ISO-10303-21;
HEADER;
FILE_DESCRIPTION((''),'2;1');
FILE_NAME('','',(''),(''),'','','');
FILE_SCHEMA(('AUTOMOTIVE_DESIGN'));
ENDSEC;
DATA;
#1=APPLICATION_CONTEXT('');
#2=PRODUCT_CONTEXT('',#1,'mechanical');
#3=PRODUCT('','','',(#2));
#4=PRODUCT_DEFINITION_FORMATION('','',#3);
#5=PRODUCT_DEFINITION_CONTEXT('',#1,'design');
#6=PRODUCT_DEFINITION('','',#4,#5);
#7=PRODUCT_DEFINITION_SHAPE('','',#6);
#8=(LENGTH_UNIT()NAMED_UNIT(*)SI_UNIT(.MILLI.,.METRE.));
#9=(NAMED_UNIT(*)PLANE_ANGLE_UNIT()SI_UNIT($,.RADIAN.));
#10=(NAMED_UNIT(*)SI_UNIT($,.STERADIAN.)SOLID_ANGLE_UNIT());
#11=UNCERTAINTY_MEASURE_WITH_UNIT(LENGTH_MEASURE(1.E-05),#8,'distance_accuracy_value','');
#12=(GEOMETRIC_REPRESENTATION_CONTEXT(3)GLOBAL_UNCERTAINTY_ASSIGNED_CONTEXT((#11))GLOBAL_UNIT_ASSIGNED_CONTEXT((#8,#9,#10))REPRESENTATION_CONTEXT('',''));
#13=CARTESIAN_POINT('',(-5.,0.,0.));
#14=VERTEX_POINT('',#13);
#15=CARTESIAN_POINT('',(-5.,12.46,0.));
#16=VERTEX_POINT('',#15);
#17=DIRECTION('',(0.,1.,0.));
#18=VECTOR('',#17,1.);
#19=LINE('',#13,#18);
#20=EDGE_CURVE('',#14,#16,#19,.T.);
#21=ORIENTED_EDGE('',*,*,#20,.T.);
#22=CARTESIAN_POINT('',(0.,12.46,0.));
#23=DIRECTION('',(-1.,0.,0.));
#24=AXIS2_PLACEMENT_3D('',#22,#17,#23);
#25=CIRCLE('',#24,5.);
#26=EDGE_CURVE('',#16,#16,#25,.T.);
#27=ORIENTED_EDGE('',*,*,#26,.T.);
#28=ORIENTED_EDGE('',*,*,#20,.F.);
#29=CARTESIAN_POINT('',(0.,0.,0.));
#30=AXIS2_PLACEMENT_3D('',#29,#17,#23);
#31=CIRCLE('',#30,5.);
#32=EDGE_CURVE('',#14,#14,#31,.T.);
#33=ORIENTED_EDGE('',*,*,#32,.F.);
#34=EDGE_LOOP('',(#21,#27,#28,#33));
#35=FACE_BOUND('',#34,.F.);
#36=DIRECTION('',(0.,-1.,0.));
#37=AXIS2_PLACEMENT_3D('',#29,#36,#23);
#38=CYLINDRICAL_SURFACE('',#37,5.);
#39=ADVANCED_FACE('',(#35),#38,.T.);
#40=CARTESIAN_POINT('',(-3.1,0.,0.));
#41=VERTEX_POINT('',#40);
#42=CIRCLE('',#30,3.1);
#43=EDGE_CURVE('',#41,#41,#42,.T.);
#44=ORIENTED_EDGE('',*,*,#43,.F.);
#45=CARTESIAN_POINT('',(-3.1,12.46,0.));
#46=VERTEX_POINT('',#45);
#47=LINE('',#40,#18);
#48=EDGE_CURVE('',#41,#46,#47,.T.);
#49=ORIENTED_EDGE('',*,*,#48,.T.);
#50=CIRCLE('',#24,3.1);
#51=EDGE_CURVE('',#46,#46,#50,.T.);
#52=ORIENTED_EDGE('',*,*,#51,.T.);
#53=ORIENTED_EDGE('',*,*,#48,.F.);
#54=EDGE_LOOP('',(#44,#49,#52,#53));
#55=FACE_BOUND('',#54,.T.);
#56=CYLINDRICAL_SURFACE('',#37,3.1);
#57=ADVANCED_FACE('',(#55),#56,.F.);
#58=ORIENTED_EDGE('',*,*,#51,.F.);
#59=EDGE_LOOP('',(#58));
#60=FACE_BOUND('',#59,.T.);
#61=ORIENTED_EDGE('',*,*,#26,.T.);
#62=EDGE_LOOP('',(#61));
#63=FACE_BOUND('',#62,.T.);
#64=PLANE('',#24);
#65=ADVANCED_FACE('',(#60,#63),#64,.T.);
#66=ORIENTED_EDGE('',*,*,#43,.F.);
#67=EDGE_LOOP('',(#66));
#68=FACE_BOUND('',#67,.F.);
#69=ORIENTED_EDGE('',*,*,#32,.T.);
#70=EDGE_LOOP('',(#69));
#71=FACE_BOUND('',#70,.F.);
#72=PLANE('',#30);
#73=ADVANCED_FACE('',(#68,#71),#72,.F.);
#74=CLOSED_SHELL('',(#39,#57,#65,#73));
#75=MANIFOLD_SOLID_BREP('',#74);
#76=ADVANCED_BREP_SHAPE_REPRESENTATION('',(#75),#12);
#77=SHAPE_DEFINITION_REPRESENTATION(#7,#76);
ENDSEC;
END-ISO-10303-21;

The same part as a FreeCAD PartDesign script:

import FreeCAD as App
import Part
import Sketcher

V = App.Vector
Q = App.Units.Quantity

doc = App.newDocument("Part")
body = doc.addObject("PartDesign::Body", "Body")

# Sketch on XZ plane
sketch1 = body.newObject("Sketcher::SketchObject", "Sketch")
sketch1.AttachmentSupport = (doc.getObject("XZ_Plane"), [""])
sketch1.MapMode = "FlatFace"
sketch1.addGeometry([
    Part.Circle(V(0, 0, 0), V(0, 0, 1), 5),
    Part.Circle(V(0, 0, 0), V(0, 0, 1), 3.1),
], False)
sketch1.addConstraint([
    Sketcher.Constraint("Coincident", 0, 3, -1, 1),
    Sketcher.Constraint("Coincident", 1, 3, -1, 1),
    Sketcher.Constraint("Diameter", 0, Q("10 mm")),
    Sketcher.Constraint("Diameter", 1, Q("6.2 mm")),
])
pad1 = body.newObject("PartDesign::Pad", "Pad")
pad1.Profile = sketch1
pad1.Length = 12.46
pad1.Reversed = True

doc.recompute()
